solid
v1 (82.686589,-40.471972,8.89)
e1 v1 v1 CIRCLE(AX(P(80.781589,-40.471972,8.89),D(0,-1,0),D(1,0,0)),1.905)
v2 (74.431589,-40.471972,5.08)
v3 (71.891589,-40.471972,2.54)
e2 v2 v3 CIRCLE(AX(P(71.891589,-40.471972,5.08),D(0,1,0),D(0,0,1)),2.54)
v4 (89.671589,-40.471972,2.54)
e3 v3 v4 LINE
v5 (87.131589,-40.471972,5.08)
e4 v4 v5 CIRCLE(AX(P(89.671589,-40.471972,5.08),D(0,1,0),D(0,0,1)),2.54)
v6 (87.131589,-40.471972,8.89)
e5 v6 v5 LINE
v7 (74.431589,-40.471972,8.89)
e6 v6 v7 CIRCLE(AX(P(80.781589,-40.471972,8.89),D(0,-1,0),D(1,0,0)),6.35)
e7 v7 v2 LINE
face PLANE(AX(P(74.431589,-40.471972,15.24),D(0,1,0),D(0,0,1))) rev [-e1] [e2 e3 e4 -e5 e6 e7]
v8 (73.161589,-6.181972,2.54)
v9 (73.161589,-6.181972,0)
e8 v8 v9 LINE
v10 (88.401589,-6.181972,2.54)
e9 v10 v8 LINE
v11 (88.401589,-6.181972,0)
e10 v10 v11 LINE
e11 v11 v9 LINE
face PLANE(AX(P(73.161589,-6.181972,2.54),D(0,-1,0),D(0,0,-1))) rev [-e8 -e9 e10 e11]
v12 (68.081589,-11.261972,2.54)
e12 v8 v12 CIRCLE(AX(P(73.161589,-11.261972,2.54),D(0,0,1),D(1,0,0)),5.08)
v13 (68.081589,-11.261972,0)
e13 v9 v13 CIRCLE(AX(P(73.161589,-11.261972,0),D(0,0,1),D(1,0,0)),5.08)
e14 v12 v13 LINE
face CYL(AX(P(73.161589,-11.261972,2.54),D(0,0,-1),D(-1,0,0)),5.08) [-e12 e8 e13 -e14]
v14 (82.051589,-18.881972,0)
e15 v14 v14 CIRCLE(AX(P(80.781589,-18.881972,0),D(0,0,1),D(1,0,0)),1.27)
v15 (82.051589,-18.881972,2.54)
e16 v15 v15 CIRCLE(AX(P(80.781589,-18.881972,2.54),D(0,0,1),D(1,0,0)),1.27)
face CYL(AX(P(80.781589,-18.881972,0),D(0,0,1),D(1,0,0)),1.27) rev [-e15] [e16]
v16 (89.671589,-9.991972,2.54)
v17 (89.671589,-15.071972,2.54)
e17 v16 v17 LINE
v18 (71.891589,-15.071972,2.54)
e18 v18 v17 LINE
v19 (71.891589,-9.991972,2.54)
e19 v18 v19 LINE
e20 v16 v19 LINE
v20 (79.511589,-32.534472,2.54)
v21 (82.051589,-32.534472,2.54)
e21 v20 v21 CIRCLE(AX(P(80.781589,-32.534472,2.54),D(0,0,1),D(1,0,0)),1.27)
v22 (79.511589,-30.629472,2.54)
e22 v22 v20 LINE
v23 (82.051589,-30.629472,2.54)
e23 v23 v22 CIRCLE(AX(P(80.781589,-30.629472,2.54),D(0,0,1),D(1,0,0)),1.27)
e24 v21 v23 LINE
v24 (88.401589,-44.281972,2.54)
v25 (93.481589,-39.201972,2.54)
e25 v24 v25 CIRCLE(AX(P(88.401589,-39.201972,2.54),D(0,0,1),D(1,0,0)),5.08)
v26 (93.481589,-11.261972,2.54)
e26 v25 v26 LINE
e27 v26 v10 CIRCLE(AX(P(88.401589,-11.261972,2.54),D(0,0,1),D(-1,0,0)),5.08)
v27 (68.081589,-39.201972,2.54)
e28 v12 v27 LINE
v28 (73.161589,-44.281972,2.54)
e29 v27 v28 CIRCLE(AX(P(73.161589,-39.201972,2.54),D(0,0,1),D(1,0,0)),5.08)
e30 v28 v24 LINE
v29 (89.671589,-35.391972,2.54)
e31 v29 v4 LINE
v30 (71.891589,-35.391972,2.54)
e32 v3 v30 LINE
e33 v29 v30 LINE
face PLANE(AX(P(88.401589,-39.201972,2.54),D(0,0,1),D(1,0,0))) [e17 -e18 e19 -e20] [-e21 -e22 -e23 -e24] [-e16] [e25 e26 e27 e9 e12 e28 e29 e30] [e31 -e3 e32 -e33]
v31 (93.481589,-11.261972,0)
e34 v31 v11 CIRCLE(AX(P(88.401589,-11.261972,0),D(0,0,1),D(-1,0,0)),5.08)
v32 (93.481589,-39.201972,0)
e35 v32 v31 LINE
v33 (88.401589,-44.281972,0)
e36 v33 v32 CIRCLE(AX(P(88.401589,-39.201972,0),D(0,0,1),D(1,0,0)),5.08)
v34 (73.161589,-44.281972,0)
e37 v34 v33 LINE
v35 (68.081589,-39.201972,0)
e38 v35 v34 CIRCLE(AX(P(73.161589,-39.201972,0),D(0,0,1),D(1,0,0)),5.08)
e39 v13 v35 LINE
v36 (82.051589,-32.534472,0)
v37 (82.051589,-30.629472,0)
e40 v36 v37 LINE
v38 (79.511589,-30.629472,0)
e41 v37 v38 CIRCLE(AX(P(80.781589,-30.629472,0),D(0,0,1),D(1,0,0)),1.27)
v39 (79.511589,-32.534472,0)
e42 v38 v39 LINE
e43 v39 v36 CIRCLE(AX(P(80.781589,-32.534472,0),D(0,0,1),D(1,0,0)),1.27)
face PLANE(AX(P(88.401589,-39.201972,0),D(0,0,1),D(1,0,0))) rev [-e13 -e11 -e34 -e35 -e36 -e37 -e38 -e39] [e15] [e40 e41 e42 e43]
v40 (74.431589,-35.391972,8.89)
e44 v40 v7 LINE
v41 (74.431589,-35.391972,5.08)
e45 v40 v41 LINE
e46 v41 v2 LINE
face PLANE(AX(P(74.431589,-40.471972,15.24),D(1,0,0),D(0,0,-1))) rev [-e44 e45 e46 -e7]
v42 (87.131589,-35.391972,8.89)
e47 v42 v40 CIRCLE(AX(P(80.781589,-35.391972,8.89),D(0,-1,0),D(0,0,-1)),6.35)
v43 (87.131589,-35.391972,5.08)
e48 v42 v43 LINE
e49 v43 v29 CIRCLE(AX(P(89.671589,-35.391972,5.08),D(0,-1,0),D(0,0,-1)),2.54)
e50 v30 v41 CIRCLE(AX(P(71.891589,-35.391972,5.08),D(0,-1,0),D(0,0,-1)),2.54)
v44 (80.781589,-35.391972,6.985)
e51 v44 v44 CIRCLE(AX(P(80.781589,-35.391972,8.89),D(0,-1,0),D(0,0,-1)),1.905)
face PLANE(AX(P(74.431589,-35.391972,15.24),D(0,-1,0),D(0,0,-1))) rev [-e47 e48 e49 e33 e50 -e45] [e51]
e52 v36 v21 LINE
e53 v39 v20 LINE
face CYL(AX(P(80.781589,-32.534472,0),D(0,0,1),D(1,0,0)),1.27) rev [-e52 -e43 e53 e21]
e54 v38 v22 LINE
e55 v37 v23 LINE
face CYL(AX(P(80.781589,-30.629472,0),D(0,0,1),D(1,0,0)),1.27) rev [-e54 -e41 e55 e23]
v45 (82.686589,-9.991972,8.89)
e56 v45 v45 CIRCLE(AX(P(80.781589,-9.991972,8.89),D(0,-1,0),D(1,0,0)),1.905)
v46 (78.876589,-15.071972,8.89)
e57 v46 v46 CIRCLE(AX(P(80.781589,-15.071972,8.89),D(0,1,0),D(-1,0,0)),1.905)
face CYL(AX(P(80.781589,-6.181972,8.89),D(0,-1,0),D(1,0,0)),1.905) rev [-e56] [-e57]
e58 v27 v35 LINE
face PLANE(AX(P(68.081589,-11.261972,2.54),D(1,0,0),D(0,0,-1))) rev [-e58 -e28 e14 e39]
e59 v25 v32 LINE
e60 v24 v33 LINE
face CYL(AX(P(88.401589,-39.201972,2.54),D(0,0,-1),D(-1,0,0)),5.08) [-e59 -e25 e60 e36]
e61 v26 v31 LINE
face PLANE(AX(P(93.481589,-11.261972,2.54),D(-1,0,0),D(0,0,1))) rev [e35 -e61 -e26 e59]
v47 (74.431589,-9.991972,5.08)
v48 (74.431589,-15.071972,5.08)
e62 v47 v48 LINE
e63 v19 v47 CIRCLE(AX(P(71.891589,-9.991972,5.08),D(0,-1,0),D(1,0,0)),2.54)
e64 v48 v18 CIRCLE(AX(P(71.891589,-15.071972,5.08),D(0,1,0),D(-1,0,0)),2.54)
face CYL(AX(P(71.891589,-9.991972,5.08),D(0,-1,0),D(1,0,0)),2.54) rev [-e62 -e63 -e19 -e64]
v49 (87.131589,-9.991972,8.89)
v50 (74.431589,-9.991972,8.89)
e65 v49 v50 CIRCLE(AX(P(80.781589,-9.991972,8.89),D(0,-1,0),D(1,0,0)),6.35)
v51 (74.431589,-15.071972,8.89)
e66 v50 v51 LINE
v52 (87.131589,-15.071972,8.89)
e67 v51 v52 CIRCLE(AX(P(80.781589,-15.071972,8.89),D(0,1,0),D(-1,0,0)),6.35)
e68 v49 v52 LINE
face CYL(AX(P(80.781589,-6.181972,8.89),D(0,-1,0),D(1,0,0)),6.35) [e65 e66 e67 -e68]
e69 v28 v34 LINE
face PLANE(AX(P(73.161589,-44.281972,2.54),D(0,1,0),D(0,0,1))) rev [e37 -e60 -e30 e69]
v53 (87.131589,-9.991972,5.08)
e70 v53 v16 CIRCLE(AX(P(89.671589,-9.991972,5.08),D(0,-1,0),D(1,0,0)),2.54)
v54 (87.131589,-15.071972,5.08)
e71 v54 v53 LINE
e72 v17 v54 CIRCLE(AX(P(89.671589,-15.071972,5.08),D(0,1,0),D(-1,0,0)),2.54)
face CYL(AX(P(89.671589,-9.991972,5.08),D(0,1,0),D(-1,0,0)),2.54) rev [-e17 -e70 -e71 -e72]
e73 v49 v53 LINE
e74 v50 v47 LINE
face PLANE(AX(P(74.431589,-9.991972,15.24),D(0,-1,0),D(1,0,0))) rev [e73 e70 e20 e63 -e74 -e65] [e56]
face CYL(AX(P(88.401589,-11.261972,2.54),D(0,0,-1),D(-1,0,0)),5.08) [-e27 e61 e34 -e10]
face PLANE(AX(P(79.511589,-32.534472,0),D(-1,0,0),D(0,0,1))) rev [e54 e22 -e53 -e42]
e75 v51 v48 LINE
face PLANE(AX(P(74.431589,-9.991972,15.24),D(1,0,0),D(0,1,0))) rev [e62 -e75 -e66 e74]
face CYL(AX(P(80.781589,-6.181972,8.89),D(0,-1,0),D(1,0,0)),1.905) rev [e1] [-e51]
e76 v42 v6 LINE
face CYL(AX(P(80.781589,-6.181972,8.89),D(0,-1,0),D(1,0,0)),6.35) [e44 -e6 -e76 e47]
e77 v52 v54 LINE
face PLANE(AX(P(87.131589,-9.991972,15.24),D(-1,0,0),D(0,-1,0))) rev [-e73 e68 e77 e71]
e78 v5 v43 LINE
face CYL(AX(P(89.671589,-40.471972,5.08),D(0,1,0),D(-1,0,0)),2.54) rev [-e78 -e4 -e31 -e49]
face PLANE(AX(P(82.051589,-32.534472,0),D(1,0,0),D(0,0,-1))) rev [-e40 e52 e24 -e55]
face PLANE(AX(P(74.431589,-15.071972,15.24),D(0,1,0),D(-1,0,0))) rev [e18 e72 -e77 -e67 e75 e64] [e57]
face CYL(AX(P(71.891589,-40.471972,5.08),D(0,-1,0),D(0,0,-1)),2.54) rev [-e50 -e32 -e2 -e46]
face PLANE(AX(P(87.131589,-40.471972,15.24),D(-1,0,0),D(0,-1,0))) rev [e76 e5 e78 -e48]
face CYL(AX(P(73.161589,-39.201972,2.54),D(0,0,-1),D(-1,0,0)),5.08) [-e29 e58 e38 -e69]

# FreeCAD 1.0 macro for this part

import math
import FreeCAD as App
import Part
import Sketcher

V = App.Vector
Q = App.Units.Quantity


def edges_at(feature, points):
    """Names of the edges that pass closest to the given points."""
    edges = feature.Shape.Edges
    near = lambda p: min(range(len(edges)), key=lambda i: edges[i].distToShape(Part.Vertex(*p))[0])
    return sorted({f"Edge{near(p) + 1}" for p in points})

doc = App.newDocument("Part")
body = doc.addObject("PartDesign::Body", "Body")

# Sketch on XY plane
sketch1 = body.newObject("Sketcher::SketchObject", "Sketch")
sketch1.AttachmentSupport = (doc.getObject("XY_Plane"), [""])
sketch1.MapMode = "FlatFace"
sketch1.addGeometry([
    Part.LineSegment(V(88, -6, 0), V(73, -6, 0)),  # 0
    Part.ArcOfCircle(Part.Circle(V(73, -11, 0), V(0, 0, 1), 5), math.radians(90), math.radians(180)),  # 1
    Part.LineSegment(V(68, -11, 0), V(68, -39, 0)),  # 2
    Part.ArcOfCircle(Part.Circle(V(73, -39, 0), V(0, 0, 1), 5), math.radians(180), math.radians(270)),  # 3
    Part.LineSegment(V(73, -44, 0), V(88, -44, 0)),  # 4
    Part.ArcOfCircle(Part.Circle(V(88, -39, 0), V(0, 0, 1), 5), math.radians(-90), math.radians(0)),  # 5
    Part.LineSegment(V(93, -39, 0), V(93, -11, 0)),  # 6
    Part.ArcOfCircle(Part.Circle(V(88, -11, 0), V(0, 0, 1), 5), math.radians(0), math.radians(90)),  # 7
], False)
sketch1.addConstraint([
    Sketcher.Constraint("Tangent", 0, 2, 1, 1),
    Sketcher.Constraint("Tangent", 1, 2, 2, 1),
    Sketcher.Constraint("Tangent", 2, 2, 3, 1),
    Sketcher.Constraint("Tangent", 3, 2, 4, 1),
    Sketcher.Constraint("Tangent", 4, 2, 5, 1),
    Sketcher.Constraint("Tangent", 5, 2, 6, 1),
    Sketcher.Constraint("Tangent", 6, 2, 7, 1),
    Sketcher.Constraint("Tangent", 7, 2, 0, 1),
    Sketcher.Constraint("Horizontal", 0),
    Sketcher.Constraint("Vertical", 2),
    Sketcher.Constraint("Horizontal", 4),
    Sketcher.Constraint("Vertical", 6),
    Sketcher.Constraint("Equal", 1, 3),
    Sketcher.Constraint("Equal", 3, 5),
    Sketcher.Constraint("Equal", 5, 7),
    Sketcher.Constraint("Radius", 1, Q("0.2 in")),
    Sketcher.Constraint("DistanceX", 0, 2, 0, 1, Q("0.6 in")),
    Sketcher.Constraint("DistanceY", 2, 2, 2, 1, Q("1.1 in")),
    Sketcher.Constraint("DistanceX", -1, 1, 1, 3, Q("73.161589 mm")),
    Sketcher.Constraint("DistanceY", 1, 3, -1, 1, Q("11.261972 mm")),
])
pad1 = body.newObject("PartDesign::Pad", "Pad")
pad1.Profile = sketch1
pad1.Length = Q("0.1 in")

# Sketch on XY plane
sketch2 = body.newObject("Sketcher::SketchObject", "Sketch001")
sketch2.AttachmentSupport = (doc.getObject("XY_Plane"), [""])
sketch2.MapMode = "FlatFace"
sketch2.AttachmentOffset = App.Placement(V(0, 0, 0.1 * 25.4), App.Rotation())
sketch2.addGeometry([
    Part.LineSegment(V(74, -10, 0), V(74, -15, 0)),  # 0
    Part.LineSegment(V(74, -15, 0), V(87, -15, 0)),  # 1
    Part.LineSegment(V(87, -15, 0), V(87, -10, 0)),  # 2
    Part.LineSegment(V(87, -10, 0), V(74, -10, 0)),  # 3
    Part.LineSegment(V(74, -35, 0), V(74, -40, 0)),  # 4
    Part.LineSegment(V(74, -40, 0), V(87, -40, 0)),  # 5
    Part.LineSegment(V(87, -40, 0), V(87, -35, 0)),  # 6
    Part.LineSegment(V(87, -35, 0), V(74, -35, 0)),  # 7
], False)
sketch2.addConstraint([
    Sketcher.Constraint("Coincident", 0, 2, 1, 1),
    Sketcher.Constraint("Coincident", 1, 2, 2, 1),
    Sketcher.Constraint("Coincident", 2, 2, 3, 1),
    Sketcher.Constraint("Coincident", 3, 2, 0, 1),
    Sketcher.Constraint("Coincident", 4, 2, 5, 1),
    Sketcher.Constraint("Coincident", 5, 2, 6, 1),
    Sketcher.Constraint("Coincident", 6, 2, 7, 1),
    Sketcher.Constraint("Coincident", 7, 2, 4, 1),
    Sketcher.Constraint("Vertical", 0),
    Sketcher.Constraint("Horizontal", 1),
    Sketcher.Constraint("Vertical", 2),
    Sketcher.Constraint("Horizontal", 3),
    Sketcher.Constraint("Vertical", 4),
    Sketcher.Constraint("Horizontal", 5),
    Sketcher.Constraint("Vertical", 6),
    Sketcher.Constraint("Horizontal", 7),
    Sketcher.Constraint("Vertical", 3, 2, 4, 2),
    Sketcher.Constraint("Vertical", 2, 2, 5, 2),
    Sketcher.Constraint("Equal", 2, 4),
    Sketcher.Constraint("DistanceX", 1, 1, 1, 2, Q("0.5 in")),
    Sketcher.Constraint("DistanceY", 0, 2, 0, 1, Q("0.2 in")),
    Sketcher.Constraint("DistanceY", 4, 2, 0, 2, Q("1 in")),
    Sketcher.Constraint("DistanceX", -1, 1, 0, 2, Q("74.431589 mm")),
    Sketcher.Constraint("DistanceY", 0, 2, -1, 1, Q("15.071972 mm")),
])
pad2 = body.newObject("PartDesign::Pad", "Pad001")
pad2.Profile = sketch2
pad2.Length = Q("0.5 in")

# Sketch on XZ plane
sketch3 = body.newObject("Sketcher::SketchObject", "Sketch002")
sketch3.AttachmentSupport = (doc.getObject("XZ_Plane"), [""])
sketch3.MapMode = "FlatFace"
sketch3.AttachmentOffset = App.Placement(V(0, 0, 40.471972), App.Rotation())
sketch3.addGeometry([
    Part.LineSegment(V(74, 15, 0), V(74, 9, 0)),  # 0
    Part.ArcOfCircle(Part.Circle(V(81, 9, 0), V(0, 0, 1), 6), math.radians(90), math.radians(180)),  # 1
    Part.LineSegment(V(81, 15, 0), V(74, 15, 0)),  # 2
    Part.LineSegment(V(87, 15, 0), V(81, 15, 0)),  # 3
    Part.ArcOfCircle(Part.Circle(V(81, 9, 0), V(0, 0, 1), 6), math.radians(0), math.radians(90)),  # 4
    Part.LineSegment(V(87, 9, 0), V(87, 15, 0)),  # 5
], False)
sketch3.addConstraint([
    Sketcher.Constraint("Tangent", 0, 2, 1, 2),
    Sketcher.Constraint("Tangent", 1, 1, 2, 1),
    Sketcher.Constraint("Coincident", 2, 2, 0, 1),
    Sketcher.Constraint("Tangent", 3, 2, 4, 2),
    Sketcher.Constraint("Tangent", 4, 1, 5, 1),
    Sketcher.Constraint("Coincident", 5, 2, 3, 1),
    Sketcher.Constraint("Vertical", 0),
    Sketcher.Constraint("Horizontal", 2),
    Sketcher.Constraint("Horizontal", 3),
    Sketcher.Constraint("Vertical", 5),
    Sketcher.Constraint("Coincident", 4, 3, 1, 3),
    Sketcher.Constraint("Equal", 1, 4),
    Sketcher.Constraint("Radius", 1, Q("0.25 in")),
    Sketcher.Constraint("DistanceY", -1, 1, 1, 1, Q("0.6 in")),
    Sketcher.Constraint("DistanceX", -1, 1, 1, 3, Q("80.781589 mm")),
])
pocket1 = body.newObject("PartDesign::Pocket", "Pocket")
pocket1.Profile = sketch3
pocket1.Type = "ThroughAll"

# Sketch on XZ plane
sketch4 = body.newObject("Sketcher::SketchObject", "Sketch003")
sketch4.AttachmentSupport = (doc.getObject("XZ_Plane"), [""])
sketch4.MapMode = "FlatFace"
sketch4.AttachmentOffset = App.Placement(V(0, 0, 40.471972), App.Rotation())
sketch4.addGeometry(Part.Circle(V(80.8, 8.9, 0), V(0, 0, 1), 1.9), False)
sketch4.addConstraint([
    Sketcher.Constraint("Diameter", 0, Q("0.15 in")),
    Sketcher.Constraint("DistanceY", -1, 1, 0, 3, Q("0.35 in")),
    Sketcher.Constraint("DistanceX", -1, 1, 0, 3, Q("80.781589 mm")),
])
pocket2 = body.newObject("PartDesign::Pocket", "Pocket001")
pocket2.Profile = sketch4
pocket2.Type = "ThroughAll"

# Sketch on XY plane
sketch5 = body.newObject("Sketcher::SketchObject", "Sketch004")
sketch5.AttachmentSupport = (doc.getObject("XY_Plane"), [""])
sketch5.MapMode = "FlatFace"
sketch5.AttachmentOffset = App.Placement(V(0, 0, 0.1 * 25.4), App.Rotation())
sketch5.addGeometry([
    Part.Circle(V(80.8, -18.9, 0), V(0, 0, 1), 1.3),  # 0
    Part.LineSegment(V(79.5, -30.6, 0), V(79.5, -32.5, 0)),  # 1
    Part.ArcOfCircle(Part.Circle(V(80.8, -32.5, 0), V(0, 0, 1), 1.3), math.radians(180), math.radians(360)),  # 2
    Part.LineSegment(V(82.1, -32.5, 0), V(82.1, -30.6, 0)),  # 3
    Part.ArcOfCircle(Part.Circle(V(80.8, -30.6, 0), V(0, 0, 1), 1.3), math.radians(0), math.radians(180)),  # 4
], False)
sketch5.addConstraint([
    Sketcher.Constraint("Tangent", 1, 2, 2, 1),
    Sketcher.Constraint("Tangent", 2, 2, 3, 1),
    Sketcher.Constraint("Tangent", 3, 2, 4, 1),
    Sketcher.Constraint("Tangent", 4, 2, 1, 1),
    Sketcher.Constraint("Vertical", 1),
    Sketcher.Constraint("Vertical", 3),
    Sketcher.Constraint("Equal", 0, 2),
    Sketcher.Constraint("Vertical", 0, 3, 2, 3),
    Sketcher.Constraint("Diameter", 0, Q("0.1 in")),
    Sketcher.Constraint("DistanceY", 1, 2, 1, 1, Q("0.075 in")),
    Sketcher.Constraint("DistanceY", 2, 3, 0, 3, Q("0.5375 in")),
    Sketcher.Constraint("DistanceX", -1, 1, 0, 3, Q("80.781589 mm")),
    Sketcher.Constraint("DistanceY", 0, 3, -1, 1, Q("18.881972 mm")),
])
pocket3 = body.newObject("PartDesign::Pocket", "Pocket002")
pocket3.Profile = sketch5
pocket3.Type = "ThroughAll"
doc.recompute()

fillet = body.newObject("PartDesign::Fillet", "Fillet")
fillet.Base = (pocket3, edges_at(pocket3, [
    (74.432, -12.532, 2.54),
    (87.132, -12.532, 2.54),
    (87.132, -37.932, 2.54),
    (74.432, -37.932, 2.54),
]))
fillet.Radius = Q("0.1 in")

doc.recompute()
